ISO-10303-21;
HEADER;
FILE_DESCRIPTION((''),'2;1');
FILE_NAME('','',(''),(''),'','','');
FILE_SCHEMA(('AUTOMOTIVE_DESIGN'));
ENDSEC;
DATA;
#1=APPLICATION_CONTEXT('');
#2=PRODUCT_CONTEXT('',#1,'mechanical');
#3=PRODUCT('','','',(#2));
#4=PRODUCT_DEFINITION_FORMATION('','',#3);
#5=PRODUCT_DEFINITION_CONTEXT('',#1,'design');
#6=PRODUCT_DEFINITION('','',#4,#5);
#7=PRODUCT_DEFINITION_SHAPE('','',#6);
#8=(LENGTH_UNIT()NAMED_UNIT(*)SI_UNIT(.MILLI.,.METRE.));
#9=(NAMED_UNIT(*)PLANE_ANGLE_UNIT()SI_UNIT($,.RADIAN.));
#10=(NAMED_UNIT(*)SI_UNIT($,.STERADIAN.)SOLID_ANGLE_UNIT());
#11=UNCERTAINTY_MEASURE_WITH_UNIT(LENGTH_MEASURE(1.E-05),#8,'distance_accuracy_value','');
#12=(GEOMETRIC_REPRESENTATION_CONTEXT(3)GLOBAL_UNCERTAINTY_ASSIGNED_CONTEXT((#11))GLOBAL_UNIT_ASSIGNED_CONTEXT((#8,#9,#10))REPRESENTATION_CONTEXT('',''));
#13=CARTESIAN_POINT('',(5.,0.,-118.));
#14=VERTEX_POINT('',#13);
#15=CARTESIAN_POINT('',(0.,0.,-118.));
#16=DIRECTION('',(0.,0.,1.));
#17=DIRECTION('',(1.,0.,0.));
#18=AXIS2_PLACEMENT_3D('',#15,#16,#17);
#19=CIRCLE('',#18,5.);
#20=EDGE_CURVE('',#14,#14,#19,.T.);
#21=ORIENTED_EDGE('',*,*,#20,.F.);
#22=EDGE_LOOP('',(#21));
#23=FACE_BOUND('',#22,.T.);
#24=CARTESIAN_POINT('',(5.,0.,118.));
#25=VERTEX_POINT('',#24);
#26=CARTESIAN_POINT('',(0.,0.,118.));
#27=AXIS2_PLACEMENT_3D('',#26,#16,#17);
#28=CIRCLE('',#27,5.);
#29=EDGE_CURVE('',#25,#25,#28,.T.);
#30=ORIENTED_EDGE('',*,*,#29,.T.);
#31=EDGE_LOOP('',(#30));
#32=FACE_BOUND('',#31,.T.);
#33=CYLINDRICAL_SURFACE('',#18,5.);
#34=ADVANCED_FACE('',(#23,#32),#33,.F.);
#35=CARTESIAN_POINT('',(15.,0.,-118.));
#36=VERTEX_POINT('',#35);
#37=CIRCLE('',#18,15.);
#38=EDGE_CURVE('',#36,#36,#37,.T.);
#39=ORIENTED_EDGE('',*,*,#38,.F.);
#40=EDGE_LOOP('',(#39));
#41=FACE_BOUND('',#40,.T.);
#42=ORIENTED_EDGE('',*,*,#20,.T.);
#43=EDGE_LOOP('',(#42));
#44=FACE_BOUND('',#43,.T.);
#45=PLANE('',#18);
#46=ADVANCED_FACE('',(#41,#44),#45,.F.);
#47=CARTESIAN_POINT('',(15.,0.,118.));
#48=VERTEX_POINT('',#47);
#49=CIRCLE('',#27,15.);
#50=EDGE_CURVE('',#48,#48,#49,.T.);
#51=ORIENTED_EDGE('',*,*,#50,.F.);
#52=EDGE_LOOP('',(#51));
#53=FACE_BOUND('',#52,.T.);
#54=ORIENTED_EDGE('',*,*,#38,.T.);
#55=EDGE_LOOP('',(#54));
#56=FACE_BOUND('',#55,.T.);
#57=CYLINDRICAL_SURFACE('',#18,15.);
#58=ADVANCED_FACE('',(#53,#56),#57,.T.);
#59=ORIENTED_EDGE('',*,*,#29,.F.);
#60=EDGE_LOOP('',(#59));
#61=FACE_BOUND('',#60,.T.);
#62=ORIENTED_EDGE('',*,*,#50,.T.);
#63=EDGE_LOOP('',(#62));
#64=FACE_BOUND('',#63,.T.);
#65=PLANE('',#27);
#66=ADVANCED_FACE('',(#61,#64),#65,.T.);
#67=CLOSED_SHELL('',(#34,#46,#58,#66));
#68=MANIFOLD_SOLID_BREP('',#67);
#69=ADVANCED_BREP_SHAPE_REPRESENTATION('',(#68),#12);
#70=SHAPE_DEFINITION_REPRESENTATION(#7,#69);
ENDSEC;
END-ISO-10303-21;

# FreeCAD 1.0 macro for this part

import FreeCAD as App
import Part
import Sketcher
from FreeCAD import Vector

doc = App.newDocument("Part")
body = doc.addObject("PartDesign::Body", "Body")

sketch1 = doc.addObject("Sketcher::SketchObject", "Sketch")
body.addObject(sketch1)
sketch1.AttachmentSupport = (doc.XY_Plane, [""])
sketch1.MapMode = "FlatFace"
sketch1.addGeometry([
    Part.Circle(Vector(0, 0, 0), Vector(0, 0, 1), 15),
    Part.Circle(Vector(0, 0, 0), Vector(0, 0, 1), 5),
], False)
sketch1.addConstraint([
    Sketcher.Constraint("Coincident", 0, 3, -1, 1),
    Sketcher.Constraint("Coincident", 1, 3, -1, 1),
    Sketcher.Constraint("Diameter", 0, 30.0),
    Sketcher.Constraint("Diameter", 1, 10.0),
])
pad1 = doc.addObject("PartDesign::Pad", "Pad")
body.addObject(pad1)
pad1.Profile = sketch1
pad1.Length = 236
pad1.Midplane = True

doc.recompute()
